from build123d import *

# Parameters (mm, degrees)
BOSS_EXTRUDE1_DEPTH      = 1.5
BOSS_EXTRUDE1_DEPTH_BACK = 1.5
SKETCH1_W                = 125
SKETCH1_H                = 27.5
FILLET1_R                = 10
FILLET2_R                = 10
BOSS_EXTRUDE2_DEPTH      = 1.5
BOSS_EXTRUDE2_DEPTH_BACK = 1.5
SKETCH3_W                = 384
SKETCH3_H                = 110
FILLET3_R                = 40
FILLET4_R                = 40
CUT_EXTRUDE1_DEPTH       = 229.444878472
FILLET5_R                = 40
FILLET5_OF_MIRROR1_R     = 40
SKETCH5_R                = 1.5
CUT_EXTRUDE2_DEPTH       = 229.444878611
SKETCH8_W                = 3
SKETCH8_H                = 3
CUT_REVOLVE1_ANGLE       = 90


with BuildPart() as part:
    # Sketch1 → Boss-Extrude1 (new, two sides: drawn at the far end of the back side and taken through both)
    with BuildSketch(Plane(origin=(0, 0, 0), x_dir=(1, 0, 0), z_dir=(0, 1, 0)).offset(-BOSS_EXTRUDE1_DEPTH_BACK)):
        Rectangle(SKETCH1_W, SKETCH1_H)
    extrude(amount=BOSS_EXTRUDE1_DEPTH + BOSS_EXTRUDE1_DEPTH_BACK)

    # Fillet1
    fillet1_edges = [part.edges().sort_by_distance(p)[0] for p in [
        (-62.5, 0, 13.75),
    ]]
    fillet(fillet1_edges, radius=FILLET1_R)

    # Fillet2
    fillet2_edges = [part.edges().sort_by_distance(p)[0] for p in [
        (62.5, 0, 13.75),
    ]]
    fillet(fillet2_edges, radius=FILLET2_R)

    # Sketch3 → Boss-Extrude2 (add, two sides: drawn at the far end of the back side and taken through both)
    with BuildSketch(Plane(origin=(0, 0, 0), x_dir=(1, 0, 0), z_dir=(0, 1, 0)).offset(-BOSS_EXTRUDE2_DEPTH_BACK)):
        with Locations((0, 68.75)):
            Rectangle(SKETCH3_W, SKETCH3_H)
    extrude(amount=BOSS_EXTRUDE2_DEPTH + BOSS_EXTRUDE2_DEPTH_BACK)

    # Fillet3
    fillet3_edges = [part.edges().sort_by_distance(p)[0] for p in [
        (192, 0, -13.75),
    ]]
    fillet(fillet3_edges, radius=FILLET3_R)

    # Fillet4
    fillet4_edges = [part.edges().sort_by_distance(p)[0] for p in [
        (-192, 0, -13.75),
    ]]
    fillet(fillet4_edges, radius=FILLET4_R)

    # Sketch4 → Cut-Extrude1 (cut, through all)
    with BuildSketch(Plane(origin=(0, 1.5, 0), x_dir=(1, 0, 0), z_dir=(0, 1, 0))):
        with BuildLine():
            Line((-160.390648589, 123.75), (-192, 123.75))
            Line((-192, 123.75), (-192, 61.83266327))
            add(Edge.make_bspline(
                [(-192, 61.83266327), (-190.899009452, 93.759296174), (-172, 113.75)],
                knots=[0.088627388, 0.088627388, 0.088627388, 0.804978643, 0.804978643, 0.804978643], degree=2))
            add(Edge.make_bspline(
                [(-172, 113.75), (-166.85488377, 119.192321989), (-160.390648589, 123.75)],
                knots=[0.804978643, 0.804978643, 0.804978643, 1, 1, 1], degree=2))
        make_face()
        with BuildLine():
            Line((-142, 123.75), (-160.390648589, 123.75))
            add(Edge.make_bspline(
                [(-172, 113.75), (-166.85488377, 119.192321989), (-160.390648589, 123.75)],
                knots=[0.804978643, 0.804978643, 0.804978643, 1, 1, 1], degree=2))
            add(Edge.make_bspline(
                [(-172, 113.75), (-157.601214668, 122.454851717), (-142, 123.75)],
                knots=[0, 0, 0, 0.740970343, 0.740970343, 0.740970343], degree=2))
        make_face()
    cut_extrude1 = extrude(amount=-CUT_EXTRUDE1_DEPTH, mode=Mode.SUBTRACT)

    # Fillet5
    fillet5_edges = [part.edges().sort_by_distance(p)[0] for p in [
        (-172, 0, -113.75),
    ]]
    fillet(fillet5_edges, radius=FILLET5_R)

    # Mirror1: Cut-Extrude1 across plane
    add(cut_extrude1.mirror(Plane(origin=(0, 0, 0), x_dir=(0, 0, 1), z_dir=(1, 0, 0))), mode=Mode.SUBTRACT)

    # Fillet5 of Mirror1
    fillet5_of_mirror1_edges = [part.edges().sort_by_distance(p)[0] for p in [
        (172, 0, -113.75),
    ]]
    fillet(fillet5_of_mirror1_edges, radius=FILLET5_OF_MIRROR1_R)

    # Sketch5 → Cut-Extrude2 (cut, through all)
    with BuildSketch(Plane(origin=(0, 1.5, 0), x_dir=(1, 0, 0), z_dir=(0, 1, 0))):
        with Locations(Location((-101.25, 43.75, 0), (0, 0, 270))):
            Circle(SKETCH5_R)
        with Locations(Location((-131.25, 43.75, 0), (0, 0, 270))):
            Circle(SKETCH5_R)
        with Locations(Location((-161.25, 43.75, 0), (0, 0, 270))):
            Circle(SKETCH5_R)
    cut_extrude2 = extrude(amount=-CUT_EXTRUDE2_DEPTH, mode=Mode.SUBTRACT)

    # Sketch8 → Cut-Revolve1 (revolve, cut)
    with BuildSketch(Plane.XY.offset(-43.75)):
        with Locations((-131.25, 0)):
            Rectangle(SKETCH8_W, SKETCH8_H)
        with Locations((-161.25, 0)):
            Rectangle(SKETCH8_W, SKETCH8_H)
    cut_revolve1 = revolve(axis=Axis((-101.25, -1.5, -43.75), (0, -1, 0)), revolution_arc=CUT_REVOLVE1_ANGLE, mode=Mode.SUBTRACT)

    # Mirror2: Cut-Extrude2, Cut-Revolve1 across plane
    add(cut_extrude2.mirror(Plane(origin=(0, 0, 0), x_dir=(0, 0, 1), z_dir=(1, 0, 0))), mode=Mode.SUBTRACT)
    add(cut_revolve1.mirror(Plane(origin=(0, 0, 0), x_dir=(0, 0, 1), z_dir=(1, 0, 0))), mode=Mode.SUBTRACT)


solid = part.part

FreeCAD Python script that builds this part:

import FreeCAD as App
import Part
import Sketcher
Q = App.Units.Quantity


def edges_at(feature, points):
    """Names of the edges that pass closest to the given points."""
    edges = feature.Shape.Edges
    near = lambda p: min(range(len(edges)), key=lambda i: edges[i].distToShape(Part.Vertex(*p))[0])
    return sorted({f"Edge{near(p) + 1}" for p in points})


def add_polygon(sketch, points):
    """Adds a closed chain of lines whose ends are joined by coincident constraints."""
    first, n = sketch.GeometryCount, len(points)
    for a, b in zip(points, points[1:] + points[:1]):
        sketch.addGeometry(Part.LineSegment(App.Vector(*a, 0), App.Vector(*b, 0)), False)
    for i in range(n):
        sketch.addConstraint(Sketcher.Constraint("Coincident", first + i, 2, first + (i + 1) % n, 1))

doc = App.newDocument("Part")
params = doc.addObject("Spreadsheet::Sheet", "Params")
for row, (alias, value) in enumerate([
    ("sketch1_width", "125 mm"),
    ("sketch1_height", "27.5 mm"),
    ("pad1_length", "1.5 mm"),
    ("pad1_length2", "1.5 mm"),
    ("fillet_radius", "10 mm"),
    ("fillet2_radius", "10 mm"),
    ("sketch2_width", "384 mm"),
    ("sketch2_height", "110 mm"),
    ("pad2_length", "1.5 mm"),
    ("pad2_length2", "1.5 mm"),
    ("fillet3_radius", "40 mm"),
    ("fillet4_radius", "40 mm"),
    ("fillet5_radius", "40 mm"),
    ("fillet6_radius", "40 mm"),
    ("sketch4_diameter", "3 mm"),
    ("sketch5_width", "3 mm"),
    ("groove_angle", "90 deg"),
], start=1):
    params.set(f"A{row}", alias)
    params.set(f"B{row}", "=" + value)
    params.setAlias(f"B{row}", alias)

body = doc.addObject("PartDesign::Body", "Body")

# Sketch on XZ plane
sketch1 = doc.addObject("Sketcher::SketchObject", "Sketch")
body.addObject(sketch1)
sketch1.AttachmentSupport = (doc.XZ_Plane, [""])
sketch1.MapMode = "FlatFace"
add_polygon(sketch1, [(-62, -14), (-62, 14), (62, 14), (62, -14)])  # lines 0-3
sketch1.addConstraint([
    Sketcher.Constraint("Vertical", 0),
    Sketcher.Constraint("Horizontal", 1),
    Sketcher.Constraint("Vertical", 2),
    Sketcher.Constraint("Horizontal", 3),
    Sketcher.Constraint("Symmetric", 0, 2, 2, 2, -1, 1),
    Sketcher.Constraint("DistanceX", 1, 1, 1, 2, Q("125 mm")),
    Sketcher.Constraint("DistanceY", 0, 1, 0, 2, Q("27.5 mm")),
])
sketch1.setExpression("Constraints[9]", "Params.sketch1_width")
sketch1.setExpression("Constraints[10]", "Params.sketch1_height")
pad1 = doc.addObject("PartDesign::Pad", "Pad")
body.addObject(pad1)
pad1.Profile = sketch1
pad1.Type = "TwoLengths"
pad1.setExpression("Length", "Params.pad1_length")
pad1.setExpression("Length2", "Params.pad1_length2")
pad1.Reversed = True
doc.recompute()

fillet = doc.addObject("PartDesign::Fillet", "Fillet")
body.addObject(fillet)
fillet.Base = (pad1, edges_at(pad1, [(-62.5, 0, 13.75)]))
fillet.setExpression("Radius", "Params.fillet_radius")
doc.recompute()

fillet2 = doc.addObject("PartDesign::Fillet", "Fillet001")
body.addObject(fillet2)
fillet2.Base = (fillet, edges_at(fillet, [(62.5, 0, 13.75)]))
fillet2.setExpression("Radius", "Params.fillet2_radius")

# Sketch on XZ plane
sketch2 = doc.addObject("Sketcher::SketchObject", "Sketch001")
body.addObject(sketch2)
sketch2.AttachmentSupport = (doc.XZ_Plane, [""])
sketch2.MapMode = "FlatFace"
add_polygon(sketch2, [(-192, -124), (-192, -14), (192, -14), (192, -124)])  # lines 0-3
sketch2.addConstraint([
    Sketcher.Constraint("Vertical", 0),
    Sketcher.Constraint("Horizontal", 1),
    Sketcher.Constraint("Vertical", 2),
    Sketcher.Constraint("Horizontal", 3),
    Sketcher.Constraint("DistanceX", 1, 1, 1, 2, Q("384 mm")),
    Sketcher.Constraint("DistanceY", 0, 1, 0, 2, Q("110 mm")),
    Sketcher.Constraint("DistanceX", 0, 2, -1, 1, Q("192 mm")),
    Sketcher.Constraint("DistanceY", 0, 2, -1, 1, Q("13.75 mm")),
])
sketch2.setExpression("Constraints[8]", "Params.sketch2_width")
sketch2.setExpression("Constraints[9]", "Params.sketch2_height")
pad2 = doc.addObject("PartDesign::Pad", "Pad001")
body.addObject(pad2)
pad2.Profile = sketch2
pad2.Type = "TwoLengths"
pad2.setExpression("Length", "Params.pad2_length")
pad2.setExpression("Length2", "Params.pad2_length2")
pad2.Reversed = True
doc.recompute()

fillet3 = doc.addObject("PartDesign::Fillet", "Fillet002")
body.addObject(fillet3)
fillet3.Base = (pad2, edges_at(pad2, [(192, 0, -13.75)]))
fillet3.setExpression("Radius", "Params.fillet3_radius")
doc.recompute()

fillet4 = doc.addObject("PartDesign::Fillet", "Fillet003")
body.addObject(fillet4)
fillet4.Base = (fillet3, edges_at(fillet3, [(-192, 0, -13.75)]))
fillet4.setExpression("Radius", "Params.fillet4_radius")

# Sketch on XZ plane
sketch3 = doc.addObject("Sketcher::SketchObject", "Sketch002")
body.addObject(sketch3)
sketch3.AttachmentSupport = (doc.XZ_Plane, [""])
sketch3.MapMode = "FlatFace"
sketch3.AttachmentOffset = App.Placement(App.Vector(0, 0, -1.5), App.Rotation())
sketch3.addGeometry([
    Part.LineSegment(App.Vector(-192, -123.75, 0), App.Vector(-192, -61.832663, 0)),
    Part.BSplineCurve([App.Vector(-192, -61.832663, 0), App.Vector(-190.899009, -93.759296, 0), App.Vector(-172, -113.75, 0)], [3, 3], [0.088627388, 0.804978643], False, 2, [1, 1, 1], False),
    Part.BSplineCurve([App.Vector(-172, -113.75, 0), App.Vector(-157.601215, -122.454852, 0), App.Vector(-142, -123.75, 0)], [3, 3], [0, 0.740970343], False, 2, [1, 1, 1], False),
    Part.LineSegment(App.Vector(-142, -123.75, 0), App.Vector(-192, -123.75, 0)),
], False)
sketch3.addConstraint([
    Sketcher.Constraint("Block", 1),
    Sketcher.Constraint("Block", 2),
    Sketcher.Constraint("Coincident", 0, 2, 1, 1),
    Sketcher.Constraint("Coincident", 2, 2, 3, 1),
    Sketcher.Constraint("Coincident", 3, 2, 0, 1),
    Sketcher.Constraint("Vertical", 0),
    Sketcher.Constraint("Horizontal", 3),
])
pocket1 = doc.addObject("PartDesign::Pocket", "Pocket")
body.addObject(pocket1)
pocket1.Profile = sketch3
pocket1.Type = "ThroughAll"
pocket1.Reversed = True
doc.recompute()

fillet5 = doc.addObject("PartDesign::Fillet", "Fillet004")
body.addObject(fillet5)
fillet5.Base = (pocket1, edges_at(pocket1, [(-172, 0, -113.75)]))
fillet5.setExpression("Radius", "Params.fillet5_radius")
doc.recompute()

mirrored = doc.addObject("PartDesign::Mirrored", "Mirrored")
body.addObject(mirrored)
mirrored.Originals = [pocket1]
mirrored.MirrorPlane = (doc.YZ_Plane, [""])
body.Tip = mirrored
doc.recompute()

fillet6 = doc.addObject("PartDesign::Fillet", "Fillet005")
body.addObject(fillet6)
fillet6.Base = (mirrored, edges_at(mirrored, [(172, 0, -113.75)]))
fillet6.setExpression("Radius", "Params.fillet6_radius")

# Sketch on XZ plane
sketch4 = doc.addObject("Sketcher::SketchObject", "Sketch003")
body.addObject(sketch4)
sketch4.AttachmentSupport = (doc.XZ_Plane, [""])
sketch4.MapMode = "FlatFace"
sketch4.AttachmentOffset = App.Placement(App.Vector(0, 0, -1.5), App.Rotation())
sketch4.addGeometry([
    Part.Circle(App.Vector(-101.2, -43.8, 0), App.Vector(0, 0, 1), 1.5),
    Part.Circle(App.Vector(-131.2, -43.8, 0), App.Vector(0, 0, 1), 1.5),
    Part.Circle(App.Vector(-161.2, -43.8, 0), App.Vector(0, 0, 1), 1.5),
], False)
sketch4.addConstraint([
    Sketcher.Constraint("Equal", 0, 1),
    Sketcher.Constraint("Equal", 1, 2),
    Sketcher.Constraint("Horizontal", 0, 3, 1, 3),
    Sketcher.Constraint("Horizontal", 1, 3, 2, 3),
    Sketcher.Constraint("Diameter", 0, Q("3 mm")),
    Sketcher.Constraint("DistanceX", 1, 3, 0, 3, Q("30 mm")),
    Sketcher.Constraint("DistanceX", 2, 3, 1, 3, Q("30 mm")),
    Sketcher.Constraint("DistanceX", 0, 3, -1, 1, Q("101.25 mm")),
    Sketcher.Constraint("DistanceY", 0, 3, -1, 1, Q("43.75 mm")),
])
sketch4.setExpression("Constraints[4]", "Params.sketch4_diameter")
pocket2 = doc.addObject("PartDesign::Pocket", "Pocket001")
body.addObject(pocket2)
pocket2.Profile = sketch4
pocket2.Type = "ThroughAll"
pocket2.Reversed = True

# Sketch on XY plane
sketch5 = doc.addObject("Sketcher::SketchObject", "Sketch004")
body.addObject(sketch5)
sketch5.AttachmentSupport = (doc.XY_Plane, [""])
sketch5.MapMode = "FlatFace"
sketch5.AttachmentOffset = App.Placement(App.Vector(0, 0, -43.75), App.Rotation())
add_polygon(sketch5, [(-132.8, 1.5), (-132.8, -1.5), (-129.8, -1.5), (-129.8, 1.5)])  # lines 0-3
add_polygon(sketch5, [(-162.8, 1.5), (-162.8, -1.5), (-159.8, -1.5), (-159.8, 1.5)])  # lines 4-7
sketch5.addGeometry(Part.LineSegment(App.Vector(-101.2, 1.5, 0), App.Vector(-101.2, -1.5, 0)), True)  # axis
sketch5.addConstraint([
    Sketcher.Constraint("Vertical", 0),
    Sketcher.Constraint("Horizontal", 1),
    Sketcher.Constraint("Vertical", 2),
    Sketcher.Constraint("Horizontal", 3),
    Sketcher.Constraint("Vertical", 4),
    Sketcher.Constraint("Horizontal", 5),
    Sketcher.Constraint("Vertical", 6),
    Sketcher.Constraint("Horizontal", 7),
    Sketcher.Constraint("Vertical", 8),
    Sketcher.Constraint("Horizontal", 1, 2, 4, 2),
    Sketcher.Constraint("Horizontal", 3, 2, 6, 2),
    Sketcher.Constraint("Horizontal", 7, 2, 8, 1),
    Sketcher.Constraint("Horizontal", 5, 2, 8, 2),
    Sketcher.Constraint("Equal", 3, 5),
    Sketcher.Constraint("Equal", 7, 0),
    Sketcher.Constraint("DistanceX", 1, 1, 1, 2, Q("3 mm")),
    Sketcher.Constraint("DistanceX", 4, 2, 0, 2, Q("30 mm")),
    Sketcher.Constraint("DistanceY", 0, 2, -1, 1, Q("1.5 mm")),
    Sketcher.Constraint("DistanceX", 2, 2, 8, 1, Q("28.5 mm")),
    Sketcher.Constraint("DistanceX", 0, 2, -1, 1, Q("132.75 mm")),
])
sketch5.setExpression("Constraints[23]", "Params.sketch5_width")
groove = doc.addObject("PartDesign::Groove", "Groove")
body.addObject(groove)
groove.Profile = sketch5
groove.ReferenceAxis = (sketch5, ["Axis0"])
groove.setExpression("Angle", "Params.groove_angle")
doc.recompute()

mirrored2 = doc.addObject("PartDesign::Mirrored", "Mirrored001")
body.addObject(mirrored2)
mirrored2.Originals = [pocket2, groove]
mirrored2.MirrorPlane = (doc.YZ_Plane, [""])
body.Tip = mirrored2

doc.recompute()
